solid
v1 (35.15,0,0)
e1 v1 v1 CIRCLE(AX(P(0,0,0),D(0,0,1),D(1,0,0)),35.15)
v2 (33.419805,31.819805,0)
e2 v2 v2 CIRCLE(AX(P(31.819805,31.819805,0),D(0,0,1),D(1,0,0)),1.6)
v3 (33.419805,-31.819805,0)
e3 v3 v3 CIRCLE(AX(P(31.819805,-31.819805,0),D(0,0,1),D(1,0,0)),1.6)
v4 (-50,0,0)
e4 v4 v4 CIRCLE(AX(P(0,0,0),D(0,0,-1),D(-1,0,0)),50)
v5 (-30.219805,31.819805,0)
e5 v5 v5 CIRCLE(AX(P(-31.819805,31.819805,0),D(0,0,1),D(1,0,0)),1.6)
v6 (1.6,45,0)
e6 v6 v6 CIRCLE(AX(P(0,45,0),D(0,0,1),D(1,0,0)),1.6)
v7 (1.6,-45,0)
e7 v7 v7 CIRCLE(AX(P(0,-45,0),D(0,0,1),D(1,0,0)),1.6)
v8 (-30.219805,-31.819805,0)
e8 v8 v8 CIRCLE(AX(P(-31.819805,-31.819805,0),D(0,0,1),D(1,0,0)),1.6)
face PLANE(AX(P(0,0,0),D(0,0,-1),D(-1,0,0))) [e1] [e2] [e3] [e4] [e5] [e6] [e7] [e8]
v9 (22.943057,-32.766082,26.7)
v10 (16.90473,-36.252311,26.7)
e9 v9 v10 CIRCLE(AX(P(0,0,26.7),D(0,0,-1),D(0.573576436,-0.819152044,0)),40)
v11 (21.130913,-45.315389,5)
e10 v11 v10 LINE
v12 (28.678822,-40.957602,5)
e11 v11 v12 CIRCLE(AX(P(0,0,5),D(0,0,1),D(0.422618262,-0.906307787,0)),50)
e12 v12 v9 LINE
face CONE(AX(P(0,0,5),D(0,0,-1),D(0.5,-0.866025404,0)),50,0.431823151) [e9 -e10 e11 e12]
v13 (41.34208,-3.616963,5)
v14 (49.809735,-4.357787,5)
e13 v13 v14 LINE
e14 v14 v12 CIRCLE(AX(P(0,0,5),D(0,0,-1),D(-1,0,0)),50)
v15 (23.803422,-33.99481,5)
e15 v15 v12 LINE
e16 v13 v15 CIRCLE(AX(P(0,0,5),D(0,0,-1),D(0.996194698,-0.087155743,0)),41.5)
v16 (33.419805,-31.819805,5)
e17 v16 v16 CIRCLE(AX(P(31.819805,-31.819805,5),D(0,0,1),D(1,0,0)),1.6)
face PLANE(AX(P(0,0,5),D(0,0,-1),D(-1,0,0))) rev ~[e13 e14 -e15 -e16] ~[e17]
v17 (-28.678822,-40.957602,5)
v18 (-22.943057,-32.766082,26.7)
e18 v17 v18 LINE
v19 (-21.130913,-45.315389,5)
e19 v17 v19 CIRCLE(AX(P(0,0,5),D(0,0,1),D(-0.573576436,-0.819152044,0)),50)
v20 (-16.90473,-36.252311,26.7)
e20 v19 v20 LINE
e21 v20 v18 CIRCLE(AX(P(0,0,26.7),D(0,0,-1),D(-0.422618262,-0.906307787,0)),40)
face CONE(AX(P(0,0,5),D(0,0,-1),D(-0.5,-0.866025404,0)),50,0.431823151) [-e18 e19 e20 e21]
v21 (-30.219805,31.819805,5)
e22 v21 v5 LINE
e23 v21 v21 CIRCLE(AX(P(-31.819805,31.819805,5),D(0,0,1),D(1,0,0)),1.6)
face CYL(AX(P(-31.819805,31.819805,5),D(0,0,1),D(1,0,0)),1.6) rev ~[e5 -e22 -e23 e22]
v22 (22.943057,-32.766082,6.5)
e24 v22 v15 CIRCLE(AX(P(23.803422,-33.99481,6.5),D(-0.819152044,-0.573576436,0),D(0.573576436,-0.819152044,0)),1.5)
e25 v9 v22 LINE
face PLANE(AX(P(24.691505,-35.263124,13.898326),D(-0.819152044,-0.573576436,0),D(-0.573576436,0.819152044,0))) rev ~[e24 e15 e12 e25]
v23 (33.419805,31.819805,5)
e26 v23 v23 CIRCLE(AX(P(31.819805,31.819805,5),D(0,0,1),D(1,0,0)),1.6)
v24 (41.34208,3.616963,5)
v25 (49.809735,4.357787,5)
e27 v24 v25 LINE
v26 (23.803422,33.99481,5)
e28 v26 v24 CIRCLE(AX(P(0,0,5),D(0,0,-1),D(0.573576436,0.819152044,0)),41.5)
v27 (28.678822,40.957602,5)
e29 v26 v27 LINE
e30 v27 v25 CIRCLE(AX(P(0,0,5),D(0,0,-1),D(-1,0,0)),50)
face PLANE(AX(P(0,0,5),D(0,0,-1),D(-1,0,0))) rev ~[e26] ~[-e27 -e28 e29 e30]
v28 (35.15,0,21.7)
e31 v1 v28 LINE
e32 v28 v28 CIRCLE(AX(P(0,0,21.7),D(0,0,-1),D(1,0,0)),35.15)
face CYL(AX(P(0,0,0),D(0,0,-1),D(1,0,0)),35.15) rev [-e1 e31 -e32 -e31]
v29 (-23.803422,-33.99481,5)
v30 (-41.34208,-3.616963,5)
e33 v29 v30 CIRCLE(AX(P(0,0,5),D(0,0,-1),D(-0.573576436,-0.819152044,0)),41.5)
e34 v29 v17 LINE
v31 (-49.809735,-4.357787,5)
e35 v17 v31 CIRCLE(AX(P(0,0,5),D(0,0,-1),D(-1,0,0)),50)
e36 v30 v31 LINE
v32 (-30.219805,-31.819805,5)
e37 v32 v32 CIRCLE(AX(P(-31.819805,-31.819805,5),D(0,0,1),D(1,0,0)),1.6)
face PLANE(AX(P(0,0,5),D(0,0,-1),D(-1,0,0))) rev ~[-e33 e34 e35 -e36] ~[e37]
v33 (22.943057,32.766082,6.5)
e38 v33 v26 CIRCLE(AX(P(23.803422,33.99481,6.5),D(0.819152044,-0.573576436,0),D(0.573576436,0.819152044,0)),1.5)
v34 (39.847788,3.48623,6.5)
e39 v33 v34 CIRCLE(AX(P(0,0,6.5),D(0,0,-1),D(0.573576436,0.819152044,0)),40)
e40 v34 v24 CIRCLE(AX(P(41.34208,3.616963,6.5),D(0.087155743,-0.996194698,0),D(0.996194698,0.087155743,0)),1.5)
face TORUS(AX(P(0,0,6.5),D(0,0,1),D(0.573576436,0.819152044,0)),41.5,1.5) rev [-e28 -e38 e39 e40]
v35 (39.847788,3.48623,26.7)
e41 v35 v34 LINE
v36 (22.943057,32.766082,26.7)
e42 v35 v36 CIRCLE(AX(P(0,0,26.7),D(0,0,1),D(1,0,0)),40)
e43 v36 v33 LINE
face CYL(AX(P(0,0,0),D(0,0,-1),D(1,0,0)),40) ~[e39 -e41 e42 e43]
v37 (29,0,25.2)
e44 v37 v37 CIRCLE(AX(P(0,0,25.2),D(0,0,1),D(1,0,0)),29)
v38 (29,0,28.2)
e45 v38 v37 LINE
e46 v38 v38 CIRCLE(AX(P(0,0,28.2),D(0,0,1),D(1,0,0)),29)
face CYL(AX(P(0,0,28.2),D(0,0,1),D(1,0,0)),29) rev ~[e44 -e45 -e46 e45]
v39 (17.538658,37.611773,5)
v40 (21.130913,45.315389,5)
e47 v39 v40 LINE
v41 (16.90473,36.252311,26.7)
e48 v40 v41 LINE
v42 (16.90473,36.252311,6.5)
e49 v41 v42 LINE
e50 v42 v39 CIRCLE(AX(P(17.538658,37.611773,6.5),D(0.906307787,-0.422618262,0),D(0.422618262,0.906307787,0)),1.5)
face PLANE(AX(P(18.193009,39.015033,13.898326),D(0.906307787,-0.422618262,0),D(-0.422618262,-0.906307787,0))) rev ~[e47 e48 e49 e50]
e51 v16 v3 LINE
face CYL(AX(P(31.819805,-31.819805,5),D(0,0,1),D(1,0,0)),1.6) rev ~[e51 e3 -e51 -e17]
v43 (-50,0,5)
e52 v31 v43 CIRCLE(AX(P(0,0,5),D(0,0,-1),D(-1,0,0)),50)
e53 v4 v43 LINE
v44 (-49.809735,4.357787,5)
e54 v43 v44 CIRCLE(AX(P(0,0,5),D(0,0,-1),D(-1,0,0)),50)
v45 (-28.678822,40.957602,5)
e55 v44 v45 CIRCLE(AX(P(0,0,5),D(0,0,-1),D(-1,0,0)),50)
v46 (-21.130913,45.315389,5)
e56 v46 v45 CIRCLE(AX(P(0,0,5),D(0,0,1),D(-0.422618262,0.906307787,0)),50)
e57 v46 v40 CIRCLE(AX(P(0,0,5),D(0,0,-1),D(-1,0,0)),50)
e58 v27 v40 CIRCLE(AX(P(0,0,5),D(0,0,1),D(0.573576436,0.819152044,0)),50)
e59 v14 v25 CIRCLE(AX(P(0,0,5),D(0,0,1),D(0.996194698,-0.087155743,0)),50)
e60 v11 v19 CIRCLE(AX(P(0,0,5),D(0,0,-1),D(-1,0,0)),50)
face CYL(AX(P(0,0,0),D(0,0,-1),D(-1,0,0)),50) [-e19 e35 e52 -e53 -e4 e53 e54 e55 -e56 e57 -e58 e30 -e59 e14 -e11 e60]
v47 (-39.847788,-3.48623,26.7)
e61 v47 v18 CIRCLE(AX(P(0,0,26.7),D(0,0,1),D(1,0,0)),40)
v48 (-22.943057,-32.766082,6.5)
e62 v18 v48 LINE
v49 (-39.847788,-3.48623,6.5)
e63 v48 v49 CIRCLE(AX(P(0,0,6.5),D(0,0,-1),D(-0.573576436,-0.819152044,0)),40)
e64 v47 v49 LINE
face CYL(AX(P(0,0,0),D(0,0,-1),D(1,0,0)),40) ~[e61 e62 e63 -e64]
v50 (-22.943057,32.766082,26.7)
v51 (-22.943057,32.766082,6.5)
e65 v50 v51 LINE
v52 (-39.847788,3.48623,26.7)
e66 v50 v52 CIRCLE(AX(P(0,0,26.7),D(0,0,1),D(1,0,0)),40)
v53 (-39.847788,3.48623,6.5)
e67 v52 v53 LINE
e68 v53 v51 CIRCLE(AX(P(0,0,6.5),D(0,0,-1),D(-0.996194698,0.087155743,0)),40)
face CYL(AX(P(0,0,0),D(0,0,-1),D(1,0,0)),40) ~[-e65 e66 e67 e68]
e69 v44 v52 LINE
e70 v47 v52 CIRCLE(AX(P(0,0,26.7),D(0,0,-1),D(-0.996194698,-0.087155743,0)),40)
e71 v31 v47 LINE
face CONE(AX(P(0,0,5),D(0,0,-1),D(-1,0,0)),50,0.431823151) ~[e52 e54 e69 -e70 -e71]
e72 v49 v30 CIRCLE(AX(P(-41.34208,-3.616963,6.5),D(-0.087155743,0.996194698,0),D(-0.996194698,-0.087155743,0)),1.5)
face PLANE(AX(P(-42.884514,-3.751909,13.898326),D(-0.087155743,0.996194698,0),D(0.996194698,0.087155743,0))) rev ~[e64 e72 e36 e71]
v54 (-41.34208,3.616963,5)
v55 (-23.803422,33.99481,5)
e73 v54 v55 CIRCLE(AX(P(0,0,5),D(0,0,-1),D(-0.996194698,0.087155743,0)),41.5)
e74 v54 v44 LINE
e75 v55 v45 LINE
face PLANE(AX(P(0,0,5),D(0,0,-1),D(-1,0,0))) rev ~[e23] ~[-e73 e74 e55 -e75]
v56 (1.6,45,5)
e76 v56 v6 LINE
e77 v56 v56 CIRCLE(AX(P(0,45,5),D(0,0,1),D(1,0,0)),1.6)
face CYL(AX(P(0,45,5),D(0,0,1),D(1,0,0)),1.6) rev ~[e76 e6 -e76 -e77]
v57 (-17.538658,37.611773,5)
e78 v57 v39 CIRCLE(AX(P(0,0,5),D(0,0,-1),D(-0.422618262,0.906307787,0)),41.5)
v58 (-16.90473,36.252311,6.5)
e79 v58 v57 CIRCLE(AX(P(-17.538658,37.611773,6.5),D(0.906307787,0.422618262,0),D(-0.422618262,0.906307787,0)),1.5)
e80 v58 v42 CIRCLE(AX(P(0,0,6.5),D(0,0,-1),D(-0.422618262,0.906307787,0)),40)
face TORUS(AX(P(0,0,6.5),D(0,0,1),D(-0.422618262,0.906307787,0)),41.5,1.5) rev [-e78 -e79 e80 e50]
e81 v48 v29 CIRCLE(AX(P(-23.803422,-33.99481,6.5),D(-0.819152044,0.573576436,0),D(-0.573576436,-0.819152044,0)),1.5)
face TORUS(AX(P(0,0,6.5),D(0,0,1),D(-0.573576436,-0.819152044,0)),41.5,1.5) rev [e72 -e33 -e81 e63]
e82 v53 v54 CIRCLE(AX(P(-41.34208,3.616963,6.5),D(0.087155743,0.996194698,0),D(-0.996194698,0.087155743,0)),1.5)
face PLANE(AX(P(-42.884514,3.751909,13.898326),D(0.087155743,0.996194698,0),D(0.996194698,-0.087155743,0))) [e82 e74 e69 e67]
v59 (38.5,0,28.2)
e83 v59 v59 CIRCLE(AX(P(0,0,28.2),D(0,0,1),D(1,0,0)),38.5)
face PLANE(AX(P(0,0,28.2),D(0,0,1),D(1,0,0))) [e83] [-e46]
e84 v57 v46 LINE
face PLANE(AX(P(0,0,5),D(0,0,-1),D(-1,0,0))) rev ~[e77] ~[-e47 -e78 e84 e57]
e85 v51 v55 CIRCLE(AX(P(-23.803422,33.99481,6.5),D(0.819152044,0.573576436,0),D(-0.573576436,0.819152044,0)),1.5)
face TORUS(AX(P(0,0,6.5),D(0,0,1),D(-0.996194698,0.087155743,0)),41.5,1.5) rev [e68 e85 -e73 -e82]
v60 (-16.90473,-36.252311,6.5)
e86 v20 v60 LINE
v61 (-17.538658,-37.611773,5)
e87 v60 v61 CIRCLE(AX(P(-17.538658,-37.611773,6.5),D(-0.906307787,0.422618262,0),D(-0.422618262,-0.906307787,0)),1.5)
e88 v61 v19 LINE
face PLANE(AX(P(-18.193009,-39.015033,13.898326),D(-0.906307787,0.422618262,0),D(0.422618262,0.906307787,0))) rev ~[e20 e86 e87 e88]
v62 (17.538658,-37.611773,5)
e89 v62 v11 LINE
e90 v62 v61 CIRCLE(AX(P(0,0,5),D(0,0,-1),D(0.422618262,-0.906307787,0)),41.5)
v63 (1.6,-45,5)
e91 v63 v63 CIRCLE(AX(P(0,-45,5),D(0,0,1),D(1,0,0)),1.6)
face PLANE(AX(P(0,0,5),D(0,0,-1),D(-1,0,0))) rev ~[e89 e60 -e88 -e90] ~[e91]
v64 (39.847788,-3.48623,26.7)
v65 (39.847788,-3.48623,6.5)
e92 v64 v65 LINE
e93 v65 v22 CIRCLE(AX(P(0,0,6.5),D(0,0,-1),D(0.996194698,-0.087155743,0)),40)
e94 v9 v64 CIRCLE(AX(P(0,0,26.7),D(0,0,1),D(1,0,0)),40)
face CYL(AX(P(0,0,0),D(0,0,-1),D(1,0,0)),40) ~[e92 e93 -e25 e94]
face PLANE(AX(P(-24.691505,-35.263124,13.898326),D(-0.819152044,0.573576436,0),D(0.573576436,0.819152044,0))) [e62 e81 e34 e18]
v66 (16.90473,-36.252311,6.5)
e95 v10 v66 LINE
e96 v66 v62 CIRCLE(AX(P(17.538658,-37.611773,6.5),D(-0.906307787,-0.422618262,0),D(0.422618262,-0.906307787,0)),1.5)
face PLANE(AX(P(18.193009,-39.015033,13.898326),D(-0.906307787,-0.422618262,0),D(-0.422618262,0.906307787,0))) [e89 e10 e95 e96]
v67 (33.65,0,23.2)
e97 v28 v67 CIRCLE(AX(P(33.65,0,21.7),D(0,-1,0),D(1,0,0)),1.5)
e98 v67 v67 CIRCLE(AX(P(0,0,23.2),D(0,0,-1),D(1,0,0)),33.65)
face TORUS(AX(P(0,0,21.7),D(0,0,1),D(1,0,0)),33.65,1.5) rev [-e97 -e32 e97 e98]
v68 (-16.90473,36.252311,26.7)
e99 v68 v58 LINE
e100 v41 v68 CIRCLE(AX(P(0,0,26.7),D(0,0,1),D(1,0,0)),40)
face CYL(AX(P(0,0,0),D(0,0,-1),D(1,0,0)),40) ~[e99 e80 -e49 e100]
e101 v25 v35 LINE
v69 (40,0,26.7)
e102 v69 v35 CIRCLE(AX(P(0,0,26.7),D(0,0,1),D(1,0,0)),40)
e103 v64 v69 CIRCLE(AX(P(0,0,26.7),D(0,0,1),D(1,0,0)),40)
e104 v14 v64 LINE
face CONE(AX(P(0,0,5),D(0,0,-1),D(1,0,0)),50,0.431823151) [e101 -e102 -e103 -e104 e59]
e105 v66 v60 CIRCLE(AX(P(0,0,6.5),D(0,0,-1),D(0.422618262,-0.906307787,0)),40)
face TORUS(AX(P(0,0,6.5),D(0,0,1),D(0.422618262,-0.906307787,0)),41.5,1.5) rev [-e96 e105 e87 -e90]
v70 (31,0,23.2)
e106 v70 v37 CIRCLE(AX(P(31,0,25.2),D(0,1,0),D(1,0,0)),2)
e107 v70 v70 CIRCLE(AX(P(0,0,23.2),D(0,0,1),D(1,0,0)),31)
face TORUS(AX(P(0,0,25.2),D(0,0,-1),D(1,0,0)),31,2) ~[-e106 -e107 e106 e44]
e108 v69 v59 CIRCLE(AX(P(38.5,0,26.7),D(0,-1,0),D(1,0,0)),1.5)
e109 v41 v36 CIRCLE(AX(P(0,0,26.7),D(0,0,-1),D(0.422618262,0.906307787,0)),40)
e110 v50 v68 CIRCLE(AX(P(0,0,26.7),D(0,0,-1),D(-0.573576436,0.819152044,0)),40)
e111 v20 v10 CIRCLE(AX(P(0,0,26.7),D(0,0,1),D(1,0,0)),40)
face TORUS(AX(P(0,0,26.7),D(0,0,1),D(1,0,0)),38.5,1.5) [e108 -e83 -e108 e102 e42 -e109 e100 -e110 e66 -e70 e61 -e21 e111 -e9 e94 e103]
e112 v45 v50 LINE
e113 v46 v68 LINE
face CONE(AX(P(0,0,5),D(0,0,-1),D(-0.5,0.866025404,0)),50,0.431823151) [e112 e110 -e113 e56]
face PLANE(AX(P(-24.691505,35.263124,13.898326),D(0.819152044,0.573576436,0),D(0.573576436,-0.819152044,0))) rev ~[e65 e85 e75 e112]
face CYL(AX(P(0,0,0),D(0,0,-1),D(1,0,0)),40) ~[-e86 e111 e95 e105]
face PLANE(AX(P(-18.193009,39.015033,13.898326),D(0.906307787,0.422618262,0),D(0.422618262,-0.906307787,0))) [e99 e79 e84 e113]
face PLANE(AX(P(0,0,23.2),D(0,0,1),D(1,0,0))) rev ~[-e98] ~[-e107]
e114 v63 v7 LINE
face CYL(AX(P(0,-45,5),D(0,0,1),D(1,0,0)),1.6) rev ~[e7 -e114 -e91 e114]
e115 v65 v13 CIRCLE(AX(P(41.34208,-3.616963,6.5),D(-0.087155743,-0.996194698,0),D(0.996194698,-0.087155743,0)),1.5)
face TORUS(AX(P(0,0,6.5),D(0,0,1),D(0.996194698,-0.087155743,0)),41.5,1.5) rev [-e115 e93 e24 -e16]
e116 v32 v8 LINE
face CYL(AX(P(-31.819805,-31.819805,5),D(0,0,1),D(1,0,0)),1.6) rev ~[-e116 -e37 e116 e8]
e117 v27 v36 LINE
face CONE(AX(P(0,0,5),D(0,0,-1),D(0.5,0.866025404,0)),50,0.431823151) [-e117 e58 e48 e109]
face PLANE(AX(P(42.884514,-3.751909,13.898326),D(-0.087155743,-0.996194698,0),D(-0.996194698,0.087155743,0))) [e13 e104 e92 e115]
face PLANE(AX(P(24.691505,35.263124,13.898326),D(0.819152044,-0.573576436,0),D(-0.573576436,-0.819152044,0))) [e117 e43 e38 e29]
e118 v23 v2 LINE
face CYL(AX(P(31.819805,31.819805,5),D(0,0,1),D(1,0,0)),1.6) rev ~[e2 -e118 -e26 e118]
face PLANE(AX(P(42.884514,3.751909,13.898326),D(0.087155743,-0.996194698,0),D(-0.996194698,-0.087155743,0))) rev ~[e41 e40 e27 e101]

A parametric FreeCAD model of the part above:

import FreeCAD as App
import Part
import Sketcher

V = App.Vector


def edges_at(feature, points):
    """Names of the edges that pass closest to the given points."""
    edges = feature.Shape.Edges
    near = lambda p: min(range(len(edges)), key=lambda i: edges[i].distToShape(Part.Vertex(*p))[0])
    return sorted({f"Edge{near(p) + 1}" for p in points})

doc = App.newDocument("Part")
body = doc.addObject("PartDesign::Body", "Body")

# Sketch on XY plane
sketch1 = body.newObject("Sketcher::SketchObject", "Sketch")
sketch1.AttachmentSupport = (doc.getObject("XY_Plane"), [""])
sketch1.MapMode = "FlatFace"
sketch1.addGeometry(Part.Circle(V(0, 0, 0), V(0, 0, 1), 40), False)
sketch1.addGeometry(Part.Circle(V(0, 0, 0), V(0, 0, 1), 35), False)
sketch1.addConstraint(Sketcher.Constraint("Coincident", 0, 3, -1, 1))
sketch1.addConstraint(Sketcher.Constraint("Coincident", 1, 3, -1, 1))
sketch1.addConstraint(Sketcher.Constraint("Diameter", 0, 80.0))
sketch1.addConstraint(Sketcher.Constraint("Diameter", 1, 70.3))
pad1 = body.newObject("PartDesign::Pad", "Pad")
pad1.Profile = sketch1
pad1.Length = 28.2

# Sketch on XY plane
sketch2 = body.newObject("Sketcher::SketchObject", "Sketch001")
sketch2.AttachmentSupport = (doc.getObject("XY_Plane"), [""])
sketch2.MapMode = "FlatFace"
sketch2.AttachmentOffset = App.Placement(V(0, 0, 28.2), App.Rotation())
sketch2.addGeometry(Part.Circle(V(0, 0, 0), V(0, 0, 1), 36), False)
sketch2.addGeometry(Part.Circle(V(0, 0, 0), V(0, 0, 1), 29), False)
sketch2.addConstraint(Sketcher.Constraint("Coincident", 0, 3, -1, 1))
sketch2.addConstraint(Sketcher.Constraint("Coincident", 1, 3, -1, 1))
sketch2.addConstraint(Sketcher.Constraint("Diameter", 0, 71.0))
sketch2.addConstraint(Sketcher.Constraint("Diameter", 1, 58.0))
pad2 = body.newObject("PartDesign::Pad", "Pad001")
pad2.Profile = sketch2
pad2.Length = 5
pad2.Reversed = True

# Sketch on XY plane
sketch3 = body.newObject("Sketcher::SketchObject", "Sketch002")
sketch3.AttachmentSupport = (doc.getObject("XY_Plane"), [""])
sketch3.MapMode = "FlatFace"
sketch3.addGeometry(Part.Circle(V(0, 0, 0), V(0, 0, 1), 50), False)
sketch3.addGeometry(Part.Circle(V(0, 0, 0), V(0, 0, 1), 40), False)
sketch3.addConstraint(Sketcher.Constraint("Coincident", 0, 3, -1, 1))
sketch3.addConstraint(Sketcher.Constraint("Coincident", 1, 3, -1, 1))
sketch3.addConstraint(Sketcher.Constraint("Diameter", 0, 100.0))
sketch3.addConstraint(Sketcher.Constraint("Diameter", 1, 80.0))
pad3 = body.newObject("PartDesign::Pad", "Pad002")
pad3.Profile = sketch3
pad3.Length = 5

# Sketch on XY plane
sketch4 = body.newObject("Sketcher::SketchObject", "Sketch003")
sketch4.AttachmentSupport = (doc.getObject("XY_Plane"), [""])
sketch4.MapMode = "FlatFace"
sketch4.AttachmentOffset = App.Placement(V(0, 0, 5), App.Rotation())
sketch4.addGeometry(Part.Circle(V(31.8, 31.8, 0), V(0, 0, 1), 1.6), False)
sketch4.addGeometry(Part.Circle(V(31.8, -31.8, 0), V(0, 0, 1), 1.6), False)
sketch4.addGeometry(Part.Circle(V(-31.8, -31.8, 0), V(0, 0, 1), 1.6), False)
sketch4.addGeometry(Part.Circle(V(-31.8, 31.8, 0), V(0, 0, 1), 1.6), False)
sketch4.addGeometry(Part.Circle(V(0, 45, 0), V(0, 0, 1), 1.6), False)
sketch4.addGeometry(Part.Circle(V(0, -45, 0), V(0, 0, 1), 1.6), False)
sketch4.addConstraint(Sketcher.Constraint("Equal", 0, 1))
sketch4.addConstraint(Sketcher.Constraint("Equal", 1, 2))
sketch4.addConstraint(Sketcher.Constraint("Equal", 2, 3))
sketch4.addConstraint(Sketcher.Constraint("Equal", 3, 4))
sketch4.addConstraint(Sketcher.Constraint("Equal", 4, 5))
sketch4.addConstraint(Sketcher.Constraint("Symmetric", 0, 3, 2, 3, -1, 1))
sketch4.addConstraint(Sketcher.Constraint("Symmetric", 1, 3, 3, 3, -1, 1))
sketch4.addConstraint(Sketcher.Constraint("Symmetric", 4, 3, 5, 3, -1, 1))
sketch4.addConstraint(Sketcher.Constraint("Symmetric", 1, 3, 2, 3, -2))
sketch4.addConstraint(Sketcher.Constraint("PointOnObject", 4, 3, -2))
sketch4.addConstraint(Sketcher.Constraint("Diameter", 0, 3.2))
sketch4.addConstraint(Sketcher.Constraint("DistanceY", -1, 1, 4, 3, 45.0))
sketch4.addConstraint(Sketcher.Constraint("DistanceY", 1, 3, 0, 3, 63.63961))
sketch4.addConstraint(Sketcher.Constraint("DistanceX", 2, 3, 1, 3, 63.63961))
pocket1 = body.newObject("PartDesign::Pocket", "Pocket")
pocket1.Profile = sketch4
pocket1.Type = "ThroughAll"
doc.recompute()

fillet = body.newObject("PartDesign::Fillet", "Fillet")
fillet.Base = (pocket1, edges_at(pocket1, [(-35.15, 0, 23.2), (-40, 0, 28.2)]))
fillet.Radius = 1.5
doc.recompute()

fillet2 = body.newObject("PartDesign::Fillet", "Fillet001")
fillet2.Base = (fillet, edges_at(fillet, [(-29, 0, 23.2)]))
fillet2.Radius = 2

# Sketch on XZ plane
sketch5 = body.newObject("Sketcher::SketchObject", "Sketch004")
sketch5.AttachmentSupport = (doc.getObject("XZ_Plane"), [""])
sketch5.MapMode = "FlatFace"
sketch5.addGeometry(Part.LineSegment(V(-50, 5, 0), V(-40, 27, 0)), False)
sketch5.addGeometry(Part.LineSegment(V(-40, 27, 0), V(-40, 5, 0)), False)
sketch5.addGeometry(Part.LineSegment(V(-40, 5, 0), V(-50, 5, 0)), False)
sketch5.addConstraint(Sketcher.Constraint("Coincident", 0, 2, 1, 1))
sketch5.addConstraint(Sketcher.Constraint("Coincident", 1, 2, 2, 1))
sketch5.addConstraint(Sketcher.Constraint("Coincident", 2, 2, 0, 1))
sketch5.addConstraint(Sketcher.Constraint("Vertical", 1))
sketch5.addConstraint(Sketcher.Constraint("Horizontal", 2))
sketch5.addConstraint(Sketcher.Constraint("DistanceX", 2, 2, 2, 1, 10.0))
sketch5.addConstraint(Sketcher.Constraint("DistanceY", 1, 2, 1, 1, 21.7))
sketch5.addConstraint(Sketcher.Constraint("DistanceX", 0, 2, -1, 1, 40.0))
sketch5.addConstraint(Sketcher.Constraint("DistanceY", -1, 1, 1, 2, 5.0))
revolution = body.newObject("PartDesign::Revolution", "Revolution")
revolution.Profile = sketch5
revolution.ReferenceAxis = (sketch5, ["V_Axis"])
revolution.Angle = 5

# Sketch on XZ plane
sketch6 = body.newObject("Sketcher::SketchObject", "Sketch005")
sketch6.AttachmentSupport = (doc.getObject("XZ_Plane"), [""])
sketch6.MapMode = "FlatFace"
sketch6.addGeometry(Part.LineSegment(V(-50, 5, 0), V(-40, 27, 0)), False)
sketch6.addGeometry(Part.LineSegment(V(-40, 27, 0), V(-40, 5, 0)), False)
sketch6.addGeometry(Part.LineSegment(V(-40, 5, 0), V(-50, 5, 0)), False)
sketch6.addConstraint(Sketcher.Constraint("Coincident", 0, 2, 1, 1))
sketch6.addConstraint(Sketcher.Constraint("Coincident", 1, 2, 2, 1))
sketch6.addConstraint(Sketcher.Constraint("Coincident", 2, 2, 0, 1))
sketch6.addConstraint(Sketcher.Constraint("Vertical", 1))
sketch6.addConstraint(Sketcher.Constraint("Horizontal", 2))
sketch6.addConstraint(Sketcher.Constraint("DistanceX", 2, 2, 2, 1, 10.0))
sketch6.addConstraint(Sketcher.Constraint("DistanceY", 1, 2, 1, 1, 21.7))
sketch6.addConstraint(Sketcher.Constraint("DistanceX", 0, 2, -1, 1, 40.0))
sketch6.addConstraint(Sketcher.Constraint("DistanceY", -1, 1, 1, 2, 5.0))
revolution2 = body.newObject("PartDesign::Revolution", "Revolution001")
revolution2.Profile = sketch6
revolution2.ReferenceAxis = (sketch6, ["V_Axis"])
revolution2.Angle = 5
revolution2.Reversed = True
doc.recompute()

polarpattern = body.newObject("PartDesign::PolarPattern", "PolarPattern")
polarpattern.Originals = [revolution, revolution2]
polarpattern.Axis = (doc.getObject("Z_Axis"), [""])
polarpattern.Angle = 360
polarpattern.Occurrences = 6
body.Tip = polarpattern
doc.recompute()

fillet3 = body.newObject("PartDesign::Fillet", "Fillet002")
fillet3.Base = (polarpattern, edges_at(polarpattern, [
    (34.641, 20, 5),
    (0, 40, 5),
    (-34.641, 20, 5),
    (-34.641, -20, 5),
    (0, -40, 5),
    (34.641, -20, 5),
]))
fillet3.Radius = 1.5

doc.recompute()
